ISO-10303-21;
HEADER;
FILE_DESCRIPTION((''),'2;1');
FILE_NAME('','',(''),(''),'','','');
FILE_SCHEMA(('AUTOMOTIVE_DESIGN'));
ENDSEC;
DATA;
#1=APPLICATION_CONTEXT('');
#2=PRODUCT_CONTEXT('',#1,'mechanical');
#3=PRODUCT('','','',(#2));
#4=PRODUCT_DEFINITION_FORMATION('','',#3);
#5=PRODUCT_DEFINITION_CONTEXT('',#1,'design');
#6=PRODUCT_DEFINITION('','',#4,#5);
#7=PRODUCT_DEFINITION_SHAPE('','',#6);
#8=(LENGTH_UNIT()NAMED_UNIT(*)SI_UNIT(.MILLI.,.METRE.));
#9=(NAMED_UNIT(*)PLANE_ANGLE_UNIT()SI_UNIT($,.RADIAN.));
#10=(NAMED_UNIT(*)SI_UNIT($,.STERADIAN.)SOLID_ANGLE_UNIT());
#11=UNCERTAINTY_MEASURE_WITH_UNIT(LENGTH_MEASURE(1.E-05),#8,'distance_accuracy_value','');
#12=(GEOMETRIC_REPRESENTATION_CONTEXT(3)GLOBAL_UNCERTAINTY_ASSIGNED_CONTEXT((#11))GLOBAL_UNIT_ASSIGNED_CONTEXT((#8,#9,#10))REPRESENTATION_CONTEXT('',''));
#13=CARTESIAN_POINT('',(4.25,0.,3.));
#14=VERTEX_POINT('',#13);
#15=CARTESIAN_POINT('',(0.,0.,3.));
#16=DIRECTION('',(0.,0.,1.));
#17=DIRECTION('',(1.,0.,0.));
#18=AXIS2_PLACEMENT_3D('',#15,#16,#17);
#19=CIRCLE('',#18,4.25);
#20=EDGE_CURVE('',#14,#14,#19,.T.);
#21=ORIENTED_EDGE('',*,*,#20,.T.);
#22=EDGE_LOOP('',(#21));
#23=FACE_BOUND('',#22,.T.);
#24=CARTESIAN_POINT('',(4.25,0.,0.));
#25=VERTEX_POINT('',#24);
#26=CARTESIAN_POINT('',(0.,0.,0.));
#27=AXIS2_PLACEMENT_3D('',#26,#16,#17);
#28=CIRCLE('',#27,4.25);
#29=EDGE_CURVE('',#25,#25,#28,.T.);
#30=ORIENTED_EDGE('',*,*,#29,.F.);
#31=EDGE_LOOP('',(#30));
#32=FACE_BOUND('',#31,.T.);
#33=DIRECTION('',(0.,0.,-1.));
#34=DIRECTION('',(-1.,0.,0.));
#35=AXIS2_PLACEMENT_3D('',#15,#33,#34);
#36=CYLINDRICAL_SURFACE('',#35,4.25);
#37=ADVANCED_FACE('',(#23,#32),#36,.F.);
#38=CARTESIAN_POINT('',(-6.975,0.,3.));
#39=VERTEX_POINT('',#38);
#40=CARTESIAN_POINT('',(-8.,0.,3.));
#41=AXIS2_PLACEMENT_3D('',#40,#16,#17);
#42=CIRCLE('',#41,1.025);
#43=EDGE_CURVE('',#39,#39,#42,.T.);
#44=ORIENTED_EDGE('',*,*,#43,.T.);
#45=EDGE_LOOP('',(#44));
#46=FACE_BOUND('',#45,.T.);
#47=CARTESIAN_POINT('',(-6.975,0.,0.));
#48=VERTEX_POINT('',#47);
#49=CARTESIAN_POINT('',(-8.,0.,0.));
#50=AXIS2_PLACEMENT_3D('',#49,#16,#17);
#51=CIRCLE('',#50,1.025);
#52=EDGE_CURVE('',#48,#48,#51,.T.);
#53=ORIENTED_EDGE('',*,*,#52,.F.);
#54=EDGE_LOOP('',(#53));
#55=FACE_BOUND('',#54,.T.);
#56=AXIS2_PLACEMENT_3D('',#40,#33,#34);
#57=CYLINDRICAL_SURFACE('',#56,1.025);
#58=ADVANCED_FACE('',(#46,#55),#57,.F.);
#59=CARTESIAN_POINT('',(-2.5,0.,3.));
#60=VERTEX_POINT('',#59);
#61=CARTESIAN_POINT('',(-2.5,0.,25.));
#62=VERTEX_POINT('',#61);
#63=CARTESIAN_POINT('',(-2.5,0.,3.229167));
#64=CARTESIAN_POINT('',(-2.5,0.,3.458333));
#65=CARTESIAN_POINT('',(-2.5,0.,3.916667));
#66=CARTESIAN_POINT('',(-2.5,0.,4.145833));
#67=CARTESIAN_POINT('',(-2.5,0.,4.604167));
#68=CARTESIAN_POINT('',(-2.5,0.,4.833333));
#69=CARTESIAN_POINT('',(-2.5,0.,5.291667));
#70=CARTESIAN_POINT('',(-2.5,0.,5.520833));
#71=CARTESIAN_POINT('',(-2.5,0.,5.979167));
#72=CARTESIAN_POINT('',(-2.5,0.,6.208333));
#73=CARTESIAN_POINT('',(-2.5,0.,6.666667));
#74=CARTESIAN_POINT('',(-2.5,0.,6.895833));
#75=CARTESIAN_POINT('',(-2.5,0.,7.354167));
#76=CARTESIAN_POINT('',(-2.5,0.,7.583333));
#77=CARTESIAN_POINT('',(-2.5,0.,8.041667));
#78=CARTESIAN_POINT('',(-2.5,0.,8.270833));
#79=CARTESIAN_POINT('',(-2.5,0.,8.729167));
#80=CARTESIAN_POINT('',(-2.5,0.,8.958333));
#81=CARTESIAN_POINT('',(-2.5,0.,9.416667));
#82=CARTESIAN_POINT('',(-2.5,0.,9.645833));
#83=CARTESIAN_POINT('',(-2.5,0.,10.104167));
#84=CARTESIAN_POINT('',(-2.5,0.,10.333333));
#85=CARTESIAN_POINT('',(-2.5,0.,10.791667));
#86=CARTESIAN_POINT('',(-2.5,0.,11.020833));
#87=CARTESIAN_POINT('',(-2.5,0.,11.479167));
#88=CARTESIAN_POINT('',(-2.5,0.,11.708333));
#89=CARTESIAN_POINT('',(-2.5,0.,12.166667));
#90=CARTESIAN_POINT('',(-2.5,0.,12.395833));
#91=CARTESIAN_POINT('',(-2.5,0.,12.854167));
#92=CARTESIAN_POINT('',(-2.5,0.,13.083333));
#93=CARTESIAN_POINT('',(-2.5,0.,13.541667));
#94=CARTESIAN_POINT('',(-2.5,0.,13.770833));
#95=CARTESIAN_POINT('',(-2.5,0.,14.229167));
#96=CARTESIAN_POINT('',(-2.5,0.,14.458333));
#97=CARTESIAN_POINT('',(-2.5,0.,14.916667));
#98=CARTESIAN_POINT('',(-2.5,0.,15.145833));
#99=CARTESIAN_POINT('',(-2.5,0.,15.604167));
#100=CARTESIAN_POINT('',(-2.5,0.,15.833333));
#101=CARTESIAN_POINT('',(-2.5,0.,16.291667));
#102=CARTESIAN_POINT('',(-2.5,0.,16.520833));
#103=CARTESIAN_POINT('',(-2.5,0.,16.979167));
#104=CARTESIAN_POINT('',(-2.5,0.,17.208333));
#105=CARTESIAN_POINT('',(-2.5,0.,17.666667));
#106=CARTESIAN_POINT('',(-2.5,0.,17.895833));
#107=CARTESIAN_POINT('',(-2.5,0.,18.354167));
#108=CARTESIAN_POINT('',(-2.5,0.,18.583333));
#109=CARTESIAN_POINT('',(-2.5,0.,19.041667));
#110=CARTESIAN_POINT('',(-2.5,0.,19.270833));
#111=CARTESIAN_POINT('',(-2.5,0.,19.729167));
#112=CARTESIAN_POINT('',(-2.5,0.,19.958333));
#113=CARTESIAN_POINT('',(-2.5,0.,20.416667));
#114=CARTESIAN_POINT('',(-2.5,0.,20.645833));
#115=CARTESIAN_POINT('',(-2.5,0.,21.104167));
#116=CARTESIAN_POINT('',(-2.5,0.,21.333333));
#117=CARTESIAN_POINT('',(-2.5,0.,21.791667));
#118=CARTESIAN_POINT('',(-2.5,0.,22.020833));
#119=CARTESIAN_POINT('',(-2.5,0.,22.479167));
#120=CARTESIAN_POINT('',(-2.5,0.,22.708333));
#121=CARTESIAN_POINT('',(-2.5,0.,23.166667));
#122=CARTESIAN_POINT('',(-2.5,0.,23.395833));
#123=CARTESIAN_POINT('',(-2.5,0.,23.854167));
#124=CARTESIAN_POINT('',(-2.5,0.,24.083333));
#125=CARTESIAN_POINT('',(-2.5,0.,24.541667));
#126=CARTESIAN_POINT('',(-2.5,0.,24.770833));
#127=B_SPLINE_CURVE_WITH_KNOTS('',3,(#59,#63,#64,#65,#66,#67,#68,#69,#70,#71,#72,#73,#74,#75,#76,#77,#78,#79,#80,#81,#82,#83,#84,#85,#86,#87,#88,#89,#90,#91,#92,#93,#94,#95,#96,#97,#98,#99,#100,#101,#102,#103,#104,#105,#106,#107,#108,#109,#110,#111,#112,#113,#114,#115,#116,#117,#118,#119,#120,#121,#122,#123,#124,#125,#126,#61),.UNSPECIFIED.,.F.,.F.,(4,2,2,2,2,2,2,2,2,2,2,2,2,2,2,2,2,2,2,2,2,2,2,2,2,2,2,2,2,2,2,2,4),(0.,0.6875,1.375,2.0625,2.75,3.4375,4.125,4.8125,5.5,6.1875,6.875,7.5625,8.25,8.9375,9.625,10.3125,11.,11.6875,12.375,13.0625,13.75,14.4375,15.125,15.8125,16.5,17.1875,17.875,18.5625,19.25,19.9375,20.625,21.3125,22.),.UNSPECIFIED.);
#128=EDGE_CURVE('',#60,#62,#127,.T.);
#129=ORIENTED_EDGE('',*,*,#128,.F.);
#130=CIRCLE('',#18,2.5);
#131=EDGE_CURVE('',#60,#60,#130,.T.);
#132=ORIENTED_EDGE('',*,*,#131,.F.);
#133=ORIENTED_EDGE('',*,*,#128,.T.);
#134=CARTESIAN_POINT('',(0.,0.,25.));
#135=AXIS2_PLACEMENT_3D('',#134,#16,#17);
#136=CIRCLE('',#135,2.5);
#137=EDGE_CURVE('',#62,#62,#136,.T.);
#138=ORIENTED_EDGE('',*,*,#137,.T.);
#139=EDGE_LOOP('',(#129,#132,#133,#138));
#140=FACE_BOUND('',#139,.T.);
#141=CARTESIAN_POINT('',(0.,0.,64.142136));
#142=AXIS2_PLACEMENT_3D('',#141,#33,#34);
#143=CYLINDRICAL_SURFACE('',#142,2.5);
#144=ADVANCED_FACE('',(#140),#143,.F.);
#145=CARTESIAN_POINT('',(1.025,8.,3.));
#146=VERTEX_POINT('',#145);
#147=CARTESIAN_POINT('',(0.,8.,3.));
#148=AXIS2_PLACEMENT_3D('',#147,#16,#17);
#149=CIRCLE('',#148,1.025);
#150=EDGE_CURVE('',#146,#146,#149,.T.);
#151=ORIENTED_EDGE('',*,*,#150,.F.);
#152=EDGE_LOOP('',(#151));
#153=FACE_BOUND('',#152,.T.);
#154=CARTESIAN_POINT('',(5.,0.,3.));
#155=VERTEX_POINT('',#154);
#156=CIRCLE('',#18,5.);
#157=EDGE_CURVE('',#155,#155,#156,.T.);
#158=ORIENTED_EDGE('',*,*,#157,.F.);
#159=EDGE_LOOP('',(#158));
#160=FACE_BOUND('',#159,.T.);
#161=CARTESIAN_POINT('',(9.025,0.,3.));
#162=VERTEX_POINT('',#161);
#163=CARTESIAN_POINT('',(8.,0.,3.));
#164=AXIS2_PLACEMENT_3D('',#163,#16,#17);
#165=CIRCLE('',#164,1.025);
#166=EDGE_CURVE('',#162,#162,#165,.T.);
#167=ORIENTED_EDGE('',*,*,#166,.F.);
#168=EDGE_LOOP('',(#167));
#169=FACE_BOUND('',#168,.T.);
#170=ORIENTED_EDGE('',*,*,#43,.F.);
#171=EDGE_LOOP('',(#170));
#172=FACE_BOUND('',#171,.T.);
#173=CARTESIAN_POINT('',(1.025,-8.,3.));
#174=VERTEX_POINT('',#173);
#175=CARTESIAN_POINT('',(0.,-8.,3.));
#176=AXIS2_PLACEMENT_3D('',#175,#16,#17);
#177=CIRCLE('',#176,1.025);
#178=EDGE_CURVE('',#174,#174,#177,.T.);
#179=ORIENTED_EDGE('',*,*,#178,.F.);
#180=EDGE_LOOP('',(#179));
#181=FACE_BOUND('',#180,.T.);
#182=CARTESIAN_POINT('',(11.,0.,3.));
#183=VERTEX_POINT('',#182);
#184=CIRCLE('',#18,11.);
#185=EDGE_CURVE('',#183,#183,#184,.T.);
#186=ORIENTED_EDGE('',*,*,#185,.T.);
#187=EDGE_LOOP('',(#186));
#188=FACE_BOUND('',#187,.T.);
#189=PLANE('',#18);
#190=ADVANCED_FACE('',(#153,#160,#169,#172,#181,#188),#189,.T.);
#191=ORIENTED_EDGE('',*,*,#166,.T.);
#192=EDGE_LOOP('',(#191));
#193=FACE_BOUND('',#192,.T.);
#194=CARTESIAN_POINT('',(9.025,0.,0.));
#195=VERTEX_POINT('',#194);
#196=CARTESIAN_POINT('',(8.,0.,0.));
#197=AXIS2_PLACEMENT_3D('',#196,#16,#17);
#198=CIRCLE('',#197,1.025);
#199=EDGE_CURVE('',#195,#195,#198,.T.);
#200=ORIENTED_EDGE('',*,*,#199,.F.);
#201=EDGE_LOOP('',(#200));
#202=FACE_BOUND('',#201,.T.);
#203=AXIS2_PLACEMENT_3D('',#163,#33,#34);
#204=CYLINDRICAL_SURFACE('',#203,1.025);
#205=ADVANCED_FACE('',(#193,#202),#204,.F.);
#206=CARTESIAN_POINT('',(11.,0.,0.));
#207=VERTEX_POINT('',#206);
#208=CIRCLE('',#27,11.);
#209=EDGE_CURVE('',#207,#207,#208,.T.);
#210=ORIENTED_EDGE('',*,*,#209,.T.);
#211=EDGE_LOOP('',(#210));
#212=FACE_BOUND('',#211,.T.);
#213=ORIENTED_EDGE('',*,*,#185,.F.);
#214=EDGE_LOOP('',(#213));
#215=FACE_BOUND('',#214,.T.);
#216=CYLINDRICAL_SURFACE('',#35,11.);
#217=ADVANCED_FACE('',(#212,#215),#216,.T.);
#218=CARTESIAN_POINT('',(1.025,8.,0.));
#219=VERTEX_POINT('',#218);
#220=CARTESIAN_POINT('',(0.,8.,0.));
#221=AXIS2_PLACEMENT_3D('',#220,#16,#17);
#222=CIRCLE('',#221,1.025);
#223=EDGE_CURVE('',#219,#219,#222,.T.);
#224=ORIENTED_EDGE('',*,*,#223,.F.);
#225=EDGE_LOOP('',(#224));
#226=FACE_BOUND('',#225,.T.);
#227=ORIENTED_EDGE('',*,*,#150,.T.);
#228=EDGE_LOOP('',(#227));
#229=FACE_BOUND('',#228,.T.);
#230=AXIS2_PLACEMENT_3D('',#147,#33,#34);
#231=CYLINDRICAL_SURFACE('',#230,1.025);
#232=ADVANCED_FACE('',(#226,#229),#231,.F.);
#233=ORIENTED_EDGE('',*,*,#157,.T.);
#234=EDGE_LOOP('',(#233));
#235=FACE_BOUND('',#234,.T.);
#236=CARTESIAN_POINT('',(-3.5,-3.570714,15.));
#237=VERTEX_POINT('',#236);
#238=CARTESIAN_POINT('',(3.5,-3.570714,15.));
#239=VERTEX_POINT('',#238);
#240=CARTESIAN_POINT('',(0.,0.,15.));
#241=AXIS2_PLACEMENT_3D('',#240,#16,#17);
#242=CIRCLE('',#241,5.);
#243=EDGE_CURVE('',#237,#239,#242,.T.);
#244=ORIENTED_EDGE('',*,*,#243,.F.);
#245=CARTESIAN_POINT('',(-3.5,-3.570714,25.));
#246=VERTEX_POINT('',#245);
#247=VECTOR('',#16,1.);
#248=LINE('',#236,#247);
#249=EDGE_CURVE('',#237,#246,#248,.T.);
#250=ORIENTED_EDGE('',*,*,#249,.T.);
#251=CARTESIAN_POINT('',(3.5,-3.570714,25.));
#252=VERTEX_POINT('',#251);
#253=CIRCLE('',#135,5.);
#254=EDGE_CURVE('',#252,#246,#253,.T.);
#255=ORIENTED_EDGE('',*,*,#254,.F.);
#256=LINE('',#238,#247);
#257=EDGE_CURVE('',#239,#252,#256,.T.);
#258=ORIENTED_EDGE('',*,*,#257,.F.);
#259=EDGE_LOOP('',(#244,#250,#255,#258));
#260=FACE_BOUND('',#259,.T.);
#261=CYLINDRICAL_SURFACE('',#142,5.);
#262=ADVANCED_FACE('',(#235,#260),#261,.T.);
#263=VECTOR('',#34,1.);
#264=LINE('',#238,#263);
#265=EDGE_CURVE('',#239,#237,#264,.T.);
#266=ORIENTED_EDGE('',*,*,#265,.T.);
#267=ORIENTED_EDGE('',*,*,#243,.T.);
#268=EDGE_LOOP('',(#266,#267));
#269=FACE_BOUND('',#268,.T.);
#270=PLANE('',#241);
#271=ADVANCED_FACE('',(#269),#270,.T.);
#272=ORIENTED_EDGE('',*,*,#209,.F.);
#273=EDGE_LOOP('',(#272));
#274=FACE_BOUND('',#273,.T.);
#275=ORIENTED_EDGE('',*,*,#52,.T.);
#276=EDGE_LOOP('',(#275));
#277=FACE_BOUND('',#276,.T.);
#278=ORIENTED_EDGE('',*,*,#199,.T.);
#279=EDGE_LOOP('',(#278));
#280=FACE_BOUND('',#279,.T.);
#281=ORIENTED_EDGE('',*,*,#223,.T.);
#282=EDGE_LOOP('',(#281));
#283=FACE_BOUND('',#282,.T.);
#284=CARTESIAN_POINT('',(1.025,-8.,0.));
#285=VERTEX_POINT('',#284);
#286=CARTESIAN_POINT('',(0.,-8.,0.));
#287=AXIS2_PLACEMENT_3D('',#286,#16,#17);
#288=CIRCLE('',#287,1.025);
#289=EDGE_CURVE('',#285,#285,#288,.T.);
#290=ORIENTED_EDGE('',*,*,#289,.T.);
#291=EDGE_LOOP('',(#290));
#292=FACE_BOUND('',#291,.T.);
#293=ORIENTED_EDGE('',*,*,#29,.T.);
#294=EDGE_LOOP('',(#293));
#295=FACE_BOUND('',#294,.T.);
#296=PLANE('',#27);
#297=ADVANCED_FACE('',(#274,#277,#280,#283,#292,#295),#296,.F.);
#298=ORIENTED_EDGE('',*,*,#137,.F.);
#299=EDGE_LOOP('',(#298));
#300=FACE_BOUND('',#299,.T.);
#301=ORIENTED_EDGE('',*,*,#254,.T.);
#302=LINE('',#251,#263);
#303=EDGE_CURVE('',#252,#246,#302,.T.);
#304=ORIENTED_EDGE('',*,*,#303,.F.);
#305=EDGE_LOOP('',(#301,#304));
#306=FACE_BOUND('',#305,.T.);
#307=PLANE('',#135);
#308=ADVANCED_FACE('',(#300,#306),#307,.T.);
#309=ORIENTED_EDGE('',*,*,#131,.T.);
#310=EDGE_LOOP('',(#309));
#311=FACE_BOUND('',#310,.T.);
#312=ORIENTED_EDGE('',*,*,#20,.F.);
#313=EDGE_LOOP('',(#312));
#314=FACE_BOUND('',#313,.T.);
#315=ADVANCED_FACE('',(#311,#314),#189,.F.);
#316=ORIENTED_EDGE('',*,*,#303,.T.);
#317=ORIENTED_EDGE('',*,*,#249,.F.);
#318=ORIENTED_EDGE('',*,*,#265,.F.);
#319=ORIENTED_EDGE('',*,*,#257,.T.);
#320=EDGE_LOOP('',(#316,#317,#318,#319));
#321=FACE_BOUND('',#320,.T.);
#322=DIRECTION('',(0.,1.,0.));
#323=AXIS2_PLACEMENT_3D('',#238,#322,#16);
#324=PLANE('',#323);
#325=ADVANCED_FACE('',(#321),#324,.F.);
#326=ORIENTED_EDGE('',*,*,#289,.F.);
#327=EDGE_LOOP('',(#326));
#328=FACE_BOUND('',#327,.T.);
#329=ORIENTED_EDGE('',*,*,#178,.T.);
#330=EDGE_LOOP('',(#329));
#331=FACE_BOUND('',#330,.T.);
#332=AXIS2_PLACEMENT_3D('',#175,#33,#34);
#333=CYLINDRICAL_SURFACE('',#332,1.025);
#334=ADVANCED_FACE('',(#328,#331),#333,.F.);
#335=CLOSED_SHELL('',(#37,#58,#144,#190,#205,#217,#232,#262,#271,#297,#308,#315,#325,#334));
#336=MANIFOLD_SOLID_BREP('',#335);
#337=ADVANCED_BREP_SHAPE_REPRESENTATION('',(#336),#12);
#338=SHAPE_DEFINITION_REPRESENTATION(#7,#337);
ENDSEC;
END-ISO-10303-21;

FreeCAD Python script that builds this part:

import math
import FreeCAD as App
import Part
import Sketcher

V = App.Vector

doc = App.newDocument("Part")
body = doc.addObject("PartDesign::Body", "Body")

# Sketch on XY plane
sketch1 = body.newObject("Sketcher::SketchObject", "Sketch")
sketch1.AttachmentSupport = (doc.getObject("XY_Plane"), [""])
sketch1.MapMode = "FlatFace"
sketch1.addGeometry(Part.Circle(V(0, 0, 0), V(0, 0, 1), 11), False)
sketch1.addGeometry(Part.Circle(V(-8, 0, 0), V(0, 0, 1), 1), False)
sketch1.addGeometry(Part.Circle(V(0, 0, 0), V(0, 0, 1), 4.2), False)
sketch1.addGeometry(Part.Circle(V(0, -8, 0), V(0, 0, 1), 1), False)
sketch1.addGeometry(Part.Circle(V(0, 8, 0), V(0, 0, 1), 1), False)
sketch1.addGeometry(Part.Circle(V(8, 0, 0), V(0, 0, 1), 1), False)
sketch1.addConstraint(Sketcher.Constraint("Coincident", 0, 3, -1, 1))
sketch1.addConstraint(Sketcher.Constraint("Coincident", 2, 3, -1, 1))
sketch1.addConstraint(Sketcher.Constraint("Equal", 1, 3))
sketch1.addConstraint(Sketcher.Constraint("Equal", 3, 4))
sketch1.addConstraint(Sketcher.Constraint("Equal", 4, 5))
sketch1.addConstraint(Sketcher.Constraint("Symmetric", 3, 3, 4, 3, -1, 1))
sketch1.addConstraint(Sketcher.Constraint("Symmetric", 1, 3, 5, 3, -1, 1))
sketch1.addConstraint(Sketcher.Constraint("PointOnObject", 1, 3, -1))
sketch1.addConstraint(Sketcher.Constraint("PointOnObject", 3, 3, -2))
sketch1.addConstraint(Sketcher.Constraint("Diameter", 0, 22.0))
sketch1.addConstraint(Sketcher.Constraint("Diameter", 2, 8.5))
sketch1.addConstraint(Sketcher.Constraint("Diameter", 1, 2.05))
sketch1.addConstraint(Sketcher.Constraint("DistanceX", 1, 3, -1, 1, 8.0))
sketch1.addConstraint(Sketcher.Constraint("DistanceY", 3, 3, -1, 1, 8.0))
pad1 = body.newObject("PartDesign::Pad", "Pad")
pad1.Profile = sketch1
pad1.Length = 3

# Sketch on XY plane
sketch2 = body.newObject("Sketcher::SketchObject", "Sketch001")
sketch2.AttachmentSupport = (doc.getObject("XY_Plane"), [""])
sketch2.MapMode = "FlatFace"
sketch2.AttachmentOffset = App.Placement(V(0, 0, 3), App.Rotation())
sketch2.addGeometry(Part.Circle(V(0, 0, 0), V(0, 0, 1), 5), False)
sketch2.addGeometry(Part.Circle(V(0, 0, 0), V(0, 0, 1), 2.5), False)
sketch2.addConstraint(Sketcher.Constraint("Coincident", 0, 3, -1, 1))
sketch2.addConstraint(Sketcher.Constraint("Coincident", 1, 3, -1, 1))
sketch2.addConstraint(Sketcher.Constraint("Diameter", 0, 10.0))
sketch2.addConstraint(Sketcher.Constraint("Diameter", 1, 5.0))
pad2 = body.newObject("PartDesign::Pad", "Pad001")
pad2.Profile = sketch2
pad2.Length = 22

# Sketch on XY plane
sketch3 = body.newObject("Sketcher::SketchObject", "Sketch002")
sketch3.AttachmentSupport = (doc.getObject("XY_Plane"), [""])
sketch3.MapMode = "FlatFace"
sketch3.AttachmentOffset = App.Placement(V(0, 0, 15), App.Rotation())
sketch3.addGeometry(Part.LineSegment(V(3.5, -3.6, 0), V(-3.5, -3.6, 0)), False)
sketch3.addGeometry(Part.ArcOfCircle(Part.Circle(V(0, 0, 0), V(0, 0, 1), 5), math.radians(-134), math.radians(-46)), False)
sketch3.addConstraint(Sketcher.Constraint("Coincident", 0, 1, 1, 2))
sketch3.addConstraint(Sketcher.Constraint("Coincident", 1, 1, 0, 2))
sketch3.addConstraint(Sketcher.Constraint("Horizontal", 0))
sketch3.addConstraint(Sketcher.Constraint("Coincident", 1, 3, -1, 1))
sketch3.addConstraint(Sketcher.Constraint("Radius", 1, 5.0))
sketch3.addConstraint(Sketcher.Constraint("DistanceX", 0, 2, 0, 1, 7.0))
pocket1 = body.newObject("PartDesign::Pocket", "Pocket")
pocket1.Profile = sketch3
pocket1.Length = 10
pocket1.Reversed = True

doc.recompute()
